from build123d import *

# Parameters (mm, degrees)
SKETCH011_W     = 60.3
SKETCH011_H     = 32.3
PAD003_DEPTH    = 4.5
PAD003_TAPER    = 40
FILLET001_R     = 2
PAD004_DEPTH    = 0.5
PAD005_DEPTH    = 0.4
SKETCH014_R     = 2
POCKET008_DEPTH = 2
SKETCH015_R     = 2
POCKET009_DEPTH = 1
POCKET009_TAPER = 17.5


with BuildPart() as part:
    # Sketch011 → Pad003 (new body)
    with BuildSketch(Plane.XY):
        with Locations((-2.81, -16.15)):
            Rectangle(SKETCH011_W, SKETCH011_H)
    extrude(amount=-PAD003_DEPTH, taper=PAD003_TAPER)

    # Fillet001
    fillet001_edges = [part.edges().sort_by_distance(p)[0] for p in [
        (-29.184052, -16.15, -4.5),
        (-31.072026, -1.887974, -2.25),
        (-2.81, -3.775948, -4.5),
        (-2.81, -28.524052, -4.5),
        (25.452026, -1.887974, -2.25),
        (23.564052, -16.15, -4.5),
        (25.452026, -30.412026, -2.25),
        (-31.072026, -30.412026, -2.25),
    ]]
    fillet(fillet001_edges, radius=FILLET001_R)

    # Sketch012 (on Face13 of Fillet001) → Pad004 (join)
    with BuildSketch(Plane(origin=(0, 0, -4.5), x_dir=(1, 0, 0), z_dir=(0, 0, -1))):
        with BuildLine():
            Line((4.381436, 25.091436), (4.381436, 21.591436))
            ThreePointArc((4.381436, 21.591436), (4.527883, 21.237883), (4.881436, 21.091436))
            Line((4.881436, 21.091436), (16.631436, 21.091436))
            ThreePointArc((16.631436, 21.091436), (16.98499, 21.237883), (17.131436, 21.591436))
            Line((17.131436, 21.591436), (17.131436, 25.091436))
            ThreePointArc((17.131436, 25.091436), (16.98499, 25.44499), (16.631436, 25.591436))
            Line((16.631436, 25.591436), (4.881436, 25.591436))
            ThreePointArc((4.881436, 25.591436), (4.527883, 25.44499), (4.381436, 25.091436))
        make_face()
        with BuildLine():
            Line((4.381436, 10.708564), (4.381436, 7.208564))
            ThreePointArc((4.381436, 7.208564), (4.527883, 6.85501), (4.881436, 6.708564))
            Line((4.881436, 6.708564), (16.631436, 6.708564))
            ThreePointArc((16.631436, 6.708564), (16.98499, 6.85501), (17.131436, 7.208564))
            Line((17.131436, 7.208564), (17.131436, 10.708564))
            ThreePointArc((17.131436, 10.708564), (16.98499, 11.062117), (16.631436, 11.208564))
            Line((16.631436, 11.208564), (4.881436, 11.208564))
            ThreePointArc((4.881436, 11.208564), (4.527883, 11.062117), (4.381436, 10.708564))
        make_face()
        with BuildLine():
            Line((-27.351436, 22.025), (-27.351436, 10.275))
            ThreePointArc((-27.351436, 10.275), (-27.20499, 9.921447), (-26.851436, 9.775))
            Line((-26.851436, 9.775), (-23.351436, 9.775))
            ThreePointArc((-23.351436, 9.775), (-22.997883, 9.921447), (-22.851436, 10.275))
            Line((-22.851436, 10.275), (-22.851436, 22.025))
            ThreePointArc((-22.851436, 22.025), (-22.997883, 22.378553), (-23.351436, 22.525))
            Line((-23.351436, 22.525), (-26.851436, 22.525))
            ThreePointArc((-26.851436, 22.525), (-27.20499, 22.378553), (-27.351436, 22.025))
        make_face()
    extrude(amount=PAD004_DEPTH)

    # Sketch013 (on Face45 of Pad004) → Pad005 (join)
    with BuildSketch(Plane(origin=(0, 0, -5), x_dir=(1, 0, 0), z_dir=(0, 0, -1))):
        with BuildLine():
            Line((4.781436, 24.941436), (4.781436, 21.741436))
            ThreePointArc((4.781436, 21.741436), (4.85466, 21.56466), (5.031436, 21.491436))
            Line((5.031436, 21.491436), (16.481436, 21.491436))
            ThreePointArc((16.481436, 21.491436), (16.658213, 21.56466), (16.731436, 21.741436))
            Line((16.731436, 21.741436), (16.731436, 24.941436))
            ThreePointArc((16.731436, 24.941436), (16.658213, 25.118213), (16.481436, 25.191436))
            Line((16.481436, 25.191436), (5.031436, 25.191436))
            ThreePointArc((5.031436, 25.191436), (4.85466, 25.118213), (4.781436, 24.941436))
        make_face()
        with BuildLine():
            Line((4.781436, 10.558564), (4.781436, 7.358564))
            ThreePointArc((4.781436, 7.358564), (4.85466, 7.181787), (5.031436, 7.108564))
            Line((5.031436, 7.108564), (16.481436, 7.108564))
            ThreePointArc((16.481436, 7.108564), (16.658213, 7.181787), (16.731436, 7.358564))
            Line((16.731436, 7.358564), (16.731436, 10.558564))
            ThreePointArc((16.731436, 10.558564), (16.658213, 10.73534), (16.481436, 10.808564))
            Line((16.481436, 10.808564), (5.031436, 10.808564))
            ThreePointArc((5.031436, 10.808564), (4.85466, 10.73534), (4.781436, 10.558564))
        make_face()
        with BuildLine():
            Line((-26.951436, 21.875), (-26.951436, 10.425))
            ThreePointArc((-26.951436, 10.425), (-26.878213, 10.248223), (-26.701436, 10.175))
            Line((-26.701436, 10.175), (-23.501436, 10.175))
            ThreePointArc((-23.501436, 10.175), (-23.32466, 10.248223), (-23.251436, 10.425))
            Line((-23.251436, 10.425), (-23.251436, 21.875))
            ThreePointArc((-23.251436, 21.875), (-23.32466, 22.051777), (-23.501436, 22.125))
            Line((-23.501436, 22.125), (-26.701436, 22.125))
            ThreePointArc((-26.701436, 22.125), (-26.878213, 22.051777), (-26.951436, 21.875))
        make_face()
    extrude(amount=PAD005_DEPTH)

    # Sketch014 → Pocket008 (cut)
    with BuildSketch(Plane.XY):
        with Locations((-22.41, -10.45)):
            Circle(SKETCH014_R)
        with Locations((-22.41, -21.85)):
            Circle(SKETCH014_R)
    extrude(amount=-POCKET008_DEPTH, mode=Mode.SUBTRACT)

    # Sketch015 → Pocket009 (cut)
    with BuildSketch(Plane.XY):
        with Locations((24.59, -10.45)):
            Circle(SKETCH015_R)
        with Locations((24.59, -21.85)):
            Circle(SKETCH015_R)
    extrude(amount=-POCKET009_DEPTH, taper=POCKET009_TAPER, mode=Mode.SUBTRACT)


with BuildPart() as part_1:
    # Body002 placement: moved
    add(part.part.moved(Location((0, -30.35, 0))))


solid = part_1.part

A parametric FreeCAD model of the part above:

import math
import FreeCAD as App
import Part
import Sketcher


def edges_at(feature, points):
    """Names of the edges that pass closest to the given points."""
    edges = feature.Shape.Edges
    near = lambda p: min(range(len(edges)), key=lambda i: edges[i].distToShape(Part.Vertex(*p))[0])
    return sorted({f"Edge{near(p) + 1}" for p in points})


def add_polygon(sketch, points):
    """Adds a closed chain of lines whose ends are joined by coincident constraints."""
    first, n = sketch.GeometryCount, len(points)
    for a, b in zip(points, points[1:] + points[:1]):
        sketch.addGeometry(Part.LineSegment(App.Vector(*a, 0), App.Vector(*b, 0)), False)
    for i in range(n):
        sketch.addConstraint(Sketcher.Constraint("Coincident", first + i, 2, first + (i + 1) % n, 1))

doc = App.newDocument("Part")
params = doc.addObject("Spreadsheet::Sheet", "Params")
for row, (alias, value) in enumerate([
    ("sketch1_width", "60.3 mm"),
    ("sketch1_height", "32.3 mm"),
    ("pad1_length", "4.5 mm"),
    ("pad1_taper", "-40 deg"),
    ("fillet_radius", "2 mm"),
    ("sketch2_radius", "0.500001 mm"),
    ("sketch2_width", "3.5 mm"),
    ("sketch2_width2", "11.75 mm"),
    ("pad2_length", "0.5 mm"),
    ("sketch3_radius", "0.250001 mm"),
    ("sketch3_width", "3.2 mm"),
    ("sketch3_width2", "11.45 mm"),
    ("pad3_length", "0.4 mm"),
    ("sketch4_diameter", "4 mm"),
    ("pocket1_length", "2 mm"),
    ("sketch5_diameter", "4 mm"),
    ("pocket2_length", "1 mm"),
    ("pocket2_taper", "-17.5 deg"),
], start=1):
    params.set(f"A{row}", alias)
    params.set(f"B{row}", "=" + value)
    params.setAlias(f"B{row}", alias)

body = doc.addObject("PartDesign::Body", "Body")

# Sketch on XY plane
sketch1 = doc.addObject("Sketcher::SketchObject", "Sketch")
body.addObject(sketch1)
sketch1.AttachmentSupport = (doc.XY_Plane, [""])
sketch1.MapMode = "FlatFace"
add_polygon(sketch1, [(-33, 0), (-33, -32), (27, -32), (27, 0)])  # lines 0-3
sketch1.addConstraint(Sketcher.Constraint("Vertical", 0))
sketch1.addConstraint(Sketcher.Constraint("Horizontal", 1))
sketch1.addConstraint(Sketcher.Constraint("Vertical", 2))
sketch1.addConstraint(Sketcher.Constraint("Horizontal", 3))
sketch1.addConstraint(Sketcher.Constraint("PointOnObject", 2, 2, -1))
sketch1.addConstraint(Sketcher.Constraint("DistanceX", 1, 1, 1, 2, 60.3))
sketch1.addConstraint(Sketcher.Constraint("DistanceY", 0, 2, 0, 1, 32.3))
sketch1.addConstraint(Sketcher.Constraint("DistanceX", 0, 2, -1, 1, 32.96))
sketch1.setExpression("Constraints[9]", "Params.sketch1_width")
sketch1.setExpression("Constraints[10]", "Params.sketch1_height")
pad1 = doc.addObject("PartDesign::Pad", "Pad")
body.addObject(pad1)
pad1.Profile = sketch1
pad1.setExpression("Length", "Params.pad1_length")
pad1.Reversed = True
pad1.setExpression("TaperAngle", "Params.pad1_taper")
doc.recompute()

fillet = doc.addObject("PartDesign::Fillet", "Fillet")
body.addObject(fillet)
fillet.Base = (pad1, edges_at(pad1, [
    (-29.184, -16.15, -4.5),
    (-31.072, -1.888, -2.25),
    (-2.81, -3.776, -4.5),
    (-2.81, -28.524, -4.5),
    (25.452, -1.888, -2.25),
    (23.564, -16.15, -4.5),
    (25.452, -30.412, -2.25),
    (-31.072, -30.412, -2.25),
]))
fillet.setExpression("Radius", "Params.fillet_radius")

# Sketch on XY plane
sketch2 = doc.addObject("Sketcher::SketchObject", "Sketch001")
body.addObject(sketch2)
sketch2.AttachmentSupport = (doc.XY_Plane, [""])
sketch2.MapMode = "FlatFace"
sketch2.AttachmentOffset = App.Placement(App.Vector(0, 0, -4.5), App.Rotation())
sketch2.addGeometry(Part.LineSegment(App.Vector(4.38, -25.09, 0), App.Vector(4.38, -21.59, 0)), False)
sketch2.addGeometry(Part.ArcOfCircle(Part.Circle(App.Vector(4.88, -21.59, 0), App.Vector(0, 0, 1), 0.5), math.radians(90), math.radians(180)), False)
sketch2.addGeometry(Part.LineSegment(App.Vector(4.88, -21.09, 0), App.Vector(16.63, -21.09, 0)), False)
sketch2.addGeometry(Part.ArcOfCircle(Part.Circle(App.Vector(16.63, -21.59, 0), App.Vector(0, 0, 1), 0.5), math.radians(0), math.radians(90)), False)
sketch2.addGeometry(Part.LineSegment(App.Vector(17.13, -21.59, 0), App.Vector(17.13, -25.09, 0)), False)
sketch2.addGeometry(Part.ArcOfCircle(Part.Circle(App.Vector(16.63, -25.09, 0), App.Vector(0, 0, 1), 0.5), math.radians(-90), math.radians(0)), False)
sketch2.addGeometry(Part.LineSegment(App.Vector(16.63, -25.59, 0), App.Vector(4.88, -25.59, 0)), False)
sketch2.addGeometry(Part.ArcOfCircle(Part.Circle(App.Vector(4.88, -25.09, 0), App.Vector(0, 0, 1), 0.5), math.radians(180), math.radians(270)), False)
sketch2.addGeometry(Part.LineSegment(App.Vector(4.38, -10.71, 0), App.Vector(4.38, -7.21, 0)), False)
sketch2.addGeometry(Part.ArcOfCircle(Part.Circle(App.Vector(4.88, -7.21, 0), App.Vector(0, 0, 1), 0.5), math.radians(90), math.radians(180)), False)
sketch2.addGeometry(Part.LineSegment(App.Vector(4.88, -6.71, 0), App.Vector(16.63, -6.71, 0)), False)
sketch2.addGeometry(Part.ArcOfCircle(Part.Circle(App.Vector(16.63, -7.21, 0), App.Vector(0, 0, 1), 0.5), math.radians(0), math.radians(90)), False)
sketch2.addGeometry(Part.LineSegment(App.Vector(17.13, -7.21, 0), App.Vector(17.13, -10.71, 0)), False)
sketch2.addGeometry(Part.ArcOfCircle(Part.Circle(App.Vector(16.63, -10.71, 0), App.Vector(0, 0, 1), 0.5), math.radians(-90), math.radians(0)), False)
sketch2.addGeometry(Part.LineSegment(App.Vector(16.63, -11.21, 0), App.Vector(4.88, -11.21, 0)), False)
sketch2.addGeometry(Part.ArcOfCircle(Part.Circle(App.Vector(4.88, -10.71, 0), App.Vector(0, 0, 1), 0.5), math.radians(-180), math.radians(-90)), False)
sketch2.addGeometry(Part.LineSegment(App.Vector(-27.35, -22.02, 0), App.Vector(-27.35, -10.28, 0)), False)
sketch2.addGeometry(Part.ArcOfCircle(Part.Circle(App.Vector(-26.85, -10.27, 0), App.Vector(0, 0, 1), 0.5), math.radians(90), math.radians(180)), False)
sketch2.addGeometry(Part.LineSegment(App.Vector(-26.85, -9.78, 0), App.Vector(-23.35, -9.78, 0)), False)
sketch2.addGeometry(Part.ArcOfCircle(Part.Circle(App.Vector(-23.35, -10.28, 0), App.Vector(0, 0, 1), 0.5), math.radians(0), math.radians(90)), False)
sketch2.addGeometry(Part.LineSegment(App.Vector(-22.85, -10.28, 0), App.Vector(-22.85, -22.02, 0)), False)
sketch2.addGeometry(Part.ArcOfCircle(Part.Circle(App.Vector(-23.35, -22.02, 0), App.Vector(0, 0, 1), 0.5), math.radians(-90), math.radians(0)), False)
sketch2.addGeometry(Part.LineSegment(App.Vector(-23.35, -22.52, 0), App.Vector(-26.85, -22.52, 0)), False)
sketch2.addGeometry(Part.ArcOfCircle(Part.Circle(App.Vector(-26.85, -22.03, 0), App.Vector(0, 0, 1), 0.5), math.radians(180), math.radians(270)), False)
sketch2.addConstraint(Sketcher.Constraint("Coincident", 0, 2, 1, 2))
sketch2.addConstraint(Sketcher.Constraint("Coincident", 1, 1, 2, 1))
sketch2.addConstraint(Sketcher.Constraint("Tangent", 2, 2, 3, 2))
sketch2.addConstraint(Sketcher.Constraint("Tangent", 3, 1, 4, 1))
sketch2.addConstraint(Sketcher.Constraint("Coincident", 4, 2, 5, 2))
sketch2.addConstraint(Sketcher.Constraint("Coincident", 5, 1, 6, 1))
sketch2.addConstraint(Sketcher.Constraint("Tangent", 6, 2, 7, 2))
sketch2.addConstraint(Sketcher.Constraint("Tangent", 7, 1, 0, 1))
sketch2.addConstraint(Sketcher.Constraint("Tangent", 8, 2, 9, 2))
sketch2.addConstraint(Sketcher.Constraint("Tangent", 9, 1, 10, 1))
sketch2.addConstraint(Sketcher.Constraint("Coincident", 10, 2, 11, 2))
sketch2.addConstraint(Sketcher.Constraint("Coincident", 11, 1, 12, 1))
sketch2.addConstraint(Sketcher.Constraint("Tangent", 12, 2, 13, 2))
sketch2.addConstraint(Sketcher.Constraint("Tangent", 13, 1, 14, 1))
sketch2.addConstraint(Sketcher.Constraint("Coincident", 14, 2, 15, 2))
sketch2.addConstraint(Sketcher.Constraint("Coincident", 15, 1, 8, 1))
sketch2.addConstraint(Sketcher.Constraint("Tangent", 16, 2, 17, 2))
sketch2.addConstraint(Sketcher.Constraint("Tangent", 17, 1, 18, 1))
sketch2.addConstraint(Sketcher.Constraint("Coincident", 18, 2, 19, 2))
sketch2.addConstraint(Sketcher.Constraint("Coincident", 19, 1, 20, 1))
sketch2.addConstraint(Sketcher.Constraint("Coincident", 20, 2, 21, 2))
sketch2.addConstraint(Sketcher.Constraint("Coincident", 21, 1, 22, 1))
sketch2.addConstraint(Sketcher.Constraint("Tangent", 22, 2, 23, 2))
sketch2.addConstraint(Sketcher.Constraint("Tangent", 23, 1, 16, 1))
sketch2.addConstraint(Sketcher.Constraint("Vertical", 0))
sketch2.addConstraint(Sketcher.Constraint("Horizontal", 2))
sketch2.addConstraint(Sketcher.Constraint("Vertical", 4))
sketch2.addConstraint(Sketcher.Constraint("Horizontal", 6))
sketch2.addConstraint(Sketcher.Constraint("Vertical", 8))
sketch2.addConstraint(Sketcher.Constraint("Horizontal", 10))
sketch2.addConstraint(Sketcher.Constraint("Vertical", 12))
sketch2.addConstraint(Sketcher.Constraint("Horizontal", 14))
sketch2.addConstraint(Sketcher.Constraint("Vertical", 16))
sketch2.addConstraint(Sketcher.Constraint("Horizontal", 18))
sketch2.addConstraint(Sketcher.Constraint("Vertical", 20))
sketch2.addConstraint(Sketcher.Constraint("Horizontal", 22))
sketch2.addConstraint(Sketcher.Constraint("Equal", 1, 3))
sketch2.addConstraint(Sketcher.Constraint("Equal", 3, 5))
sketch2.addConstraint(Sketcher.Constraint("Equal", 5, 7))
sketch2.addConstraint(Sketcher.Constraint("Equal", 7, 9))
sketch2.addConstraint(Sketcher.Constraint("Equal", 9, 11))
sketch2.addConstraint(Sketcher.Constraint("Equal", 11, 13))
sketch2.addConstraint(Sketcher.Constraint("Equal", 13, 15))
sketch2.addConstraint(Sketcher.Constraint("Equal", 15, 17))
sketch2.addConstraint(Sketcher.Constraint("Equal", 17, 19))
sketch2.addConstraint(Sketcher.Constraint("Equal", 19, 21))
sketch2.addConstraint(Sketcher.Constraint("Equal", 21, 23))
sketch2.addConstraint(Sketcher.Constraint("Horizontal", 3, 3, 0, 2))
sketch2.addConstraint(Sketcher.Constraint("Horizontal", 7, 3, 4, 2))
sketch2.addConstraint(Sketcher.Constraint("Horizontal", 8, 2, 11, 1))
sketch2.addConstraint(Sketcher.Constraint("Horizontal", 12, 2, 15, 1))
sketch2.addConstraint(Sketcher.Constraint("Horizontal", 16, 2, 19, 1))
sketch2.addConstraint(Sketcher.Constraint("Horizontal", 23, 3, 20, 2))
sketch2.addConstraint(Sketcher.Constraint("Vertical", 7, 3, 9, 3))
sketch2.addConstraint(Sketcher.Constraint("Vertical", 5, 3, 11, 3))
sketch2.addConstraint(Sketcher.Constraint("Vertical", 15, 3, 1, 1))
sketch2.addConstraint(Sketcher.Constraint("Vertical", 2, 2, 5, 1))
sketch2.addConstraint(Sketcher.Constraint("Vertical", 5, 1, 10, 2))
sketch2.addConstraint(Sketcher.Constraint("Vertical", 9, 1, 14, 2))
sketch2.addConstraint(Sketcher.Constraint("Vertical", 21, 3, 18, 2))
sketch2.addConstraint(Sketcher.Constraint("Vertical", 18, 2, 21, 1))
sketch2.addConstraint(Sketcher.Constraint("Equal", 22, 0))
sketch2.addConstraint(Sketcher.Constraint("Equal", 4, 8))
sketch2.addConstraint(Sketcher.Constraint("Equal", 14, 16))
sketch2.addConstraint(Sketcher.Constraint("Radius", 1, 0.500001))
sketch2.addConstraint(Sketcher.Constraint("DistanceX", 18, 1, 18, 2, 3.5))
sketch2.addConstraint(Sketcher.Constraint("DistanceX", 2, 1, 2, 2, 11.75))
sketch2.addConstraint(Sketcher.Constraint("DistanceY", 17, 3, -1, 1, 10.275))
sketch2.addConstraint(Sketcher.Constraint("DistanceX", -1, 1, 5, 3, 16.631438))
sketch2.addConstraint(Sketcher.Constraint("DistanceY", 5, 3, -1, 1, 25.091438))
sketch2.addConstraint(Sketcher.Constraint("DistanceY", 11, 3, -1, 1, 7.208562))
sketch2.addConstraint(Sketcher.Constraint("DistanceX", 17, 3, -1, 1, 26.851436))
sketch2.setExpression("Constraints[64]", "Params.sketch2_radius")
sketch2.setExpression("Constraints[65]", "Params.sketch2_width")
sketch2.setExpression("Constraints[66]", "Params.sketch2_width2")
pad2 = doc.addObject("PartDesign::Pad", "Pad001")
body.addObject(pad2)
pad2.Profile = sketch2
pad2.setExpression("Length", "Params.pad2_length")
pad2.Reversed = True

# Sketch on XY plane
sketch3 = doc.addObject("Sketcher::SketchObject", "Sketch002")
body.addObject(sketch3)
sketch3.AttachmentSupport = (doc.XY_Plane, [""])
sketch3.MapMode = "FlatFace"
sketch3.AttachmentOffset = App.Placement(App.Vector(0, 0, -5), App.Rotation())
sketch3.addGeometry(Part.LineSegment(App.Vector(4.78, -24.94, 0), App.Vector(4.78, -21.74, 0)), False)
sketch3.addGeometry(Part.ArcOfCircle(Part.Circle(App.Vector(5.03, -21.74, 0), App.Vector(0, 0, 1), 0.25), math.radians(90), math.radians(180)), False)
sketch3.addGeometry(Part.LineSegment(App.Vector(5.03, -21.49, 0), App.Vector(16.48, -21.49, 0)), False)
sketch3.addGeometry(Part.ArcOfCircle(Part.Circle(App.Vector(16.48, -21.74, 0), App.Vector(0, 0, 1), 0.25), math.radians(0), math.radians(90)), False)
sketch3.addGeometry(Part.LineSegment(App.Vector(16.73, -21.74, 0), App.Vector(16.73, -24.94, 0)), False)
sketch3.addGeometry(Part.ArcOfCircle(Part.Circle(App.Vector(16.48, -24.94, 0), App.Vector(0, 0, 1), 0.25), math.radians(-90), math.radians(0)), False)
sketch3.addGeometry(Part.LineSegment(App.Vector(16.48, -25.19, 0), App.Vector(5.03, -25.19, 0)), False)
sketch3.addGeometry(Part.ArcOfCircle(Part.Circle(App.Vector(5.03, -24.94, 0), App.Vector(0, 0, 1), 0.25), math.radians(-180), math.radians(-90)), False)
sketch3.addGeometry(Part.LineSegment(App.Vector(4.78, -10.56, 0), App.Vector(4.78, -7.36, 0)), False)
sketch3.addGeometry(Part.ArcOfCircle(Part.Circle(App.Vector(5.03, -7.36, 0), App.Vector(0, 0, 1), 0.25), math.radians(90), math.radians(180)), False)
sketch3.addGeometry(Part.LineSegment(App.Vector(5.03, -7.11, 0), App.Vector(16.48, -7.11, 0)), False)
sketch3.addGeometry(Part.ArcOfCircle(Part.Circle(App.Vector(16.48, -7.36, 0), App.Vector(0, 0, 1), 0.25), math.radians(0), math.radians(90)), False)
sketch3.addGeometry(Part.LineSegment(App.Vector(16.73, -7.36, 0), App.Vector(16.73, -10.56, 0)), False)
sketch3.addGeometry(Part.ArcOfCircle(Part.Circle(App.Vector(16.48, -10.56, 0), App.Vector(0, 0, 1), 0.25), math.radians(-90), math.radians(0)), False)
sketch3.addGeometry(Part.LineSegment(App.Vector(16.48, -10.81, 0), App.Vector(5.03, -10.81, 0)), False)
sketch3.addGeometry(Part.ArcOfCircle(Part.Circle(App.Vector(5.03, -10.56, 0), App.Vector(0, 0, 1), 0.25), math.radians(-180), math.radians(-90)), False)
sketch3.addGeometry(Part.LineSegment(App.Vector(-26.95, -21.88, 0), App.Vector(-26.95, -10.43, 0)), False)
sketch3.addGeometry(Part.ArcOfCircle(Part.Circle(App.Vector(-26.7, -10.42, 0), App.Vector(0, 0, 1), 0.25), math.radians(90), math.radians(180)), False)
sketch3.addGeometry(Part.LineSegment(App.Vector(-26.7, -10.18, 0), App.Vector(-23.5, -10.18, 0)), False)
sketch3.addGeometry(Part.ArcOfCircle(Part.Circle(App.Vector(-23.5, -10.43, 0), App.Vector(0, 0, 1), 0.25), math.radians(0), math.radians(90)), False)
sketch3.addGeometry(Part.LineSegment(App.Vector(-23.25, -10.43, 0), App.Vector(-23.25, -21.88, 0)), False)
sketch3.addGeometry(Part.ArcOfCircle(Part.Circle(App.Vector(-23.5, -21.87, 0), App.Vector(0, 0, 1), 0.25), math.radians(-90), math.radians(0)), False)
sketch3.addGeometry(Part.LineSegment(App.Vector(-23.5, -22.12, 0), App.Vector(-26.7, -22.12, 0)), False)
sketch3.addGeometry(Part.ArcOfCircle(Part.Circle(App.Vector(-26.7, -21.88, 0), App.Vector(0, 0, 1), 0.25), math.radians(180), math.radians(270)), False)
sketch3.addConstraint(Sketcher.Constraint("Coincident", 0, 2, 1, 2))
sketch3.addConstraint(Sketcher.Constraint("Coincident", 1, 1, 2, 1))
sketch3.addConstraint(Sketcher.Constraint("Coincident", 2, 2, 3, 2))
sketch3.addConstraint(Sketcher.Constraint("Coincident", 3, 1, 4, 1))
sketch3.addConstraint(Sketcher.Constraint("Coincident", 4, 2, 5, 2))
sketch3.addConstraint(Sketcher.Constraint("Coincident", 5, 1, 6, 1))
sketch3.addConstraint(Sketcher.Constraint("Coincident", 6, 2, 7, 2))
sketch3.addConstraint(Sketcher.Constraint("Coincident", 7, 1, 0, 1))
sketch3.addConstraint(Sketcher.Constraint("Coincident", 8, 2, 9, 2))
sketch3.addConstraint(Sketcher.Constraint("Coincident", 9, 1, 10, 1))
sketch3.addConstraint(Sketcher.Constraint("Coincident", 10, 2, 11, 2))
sketch3.addConstraint(Sketcher.Constraint("Coincident", 11, 1, 12, 1))
sketch3.addConstraint(Sketcher.Constraint("Coincident", 12, 2, 13, 2))
sketch3.addConstraint(Sketcher.Constraint("Coincident", 13, 1, 14, 1))
sketch3.addConstraint(Sketcher.Constraint("Coincident", 14, 2, 15, 2))
sketch3.addConstraint(Sketcher.Constraint("Coincident", 15, 1, 8, 1))
sketch3.addConstraint(Sketcher.Constraint("Coincident", 16, 2, 17, 2))
sketch3.addConstraint(Sketcher.Constraint("Coincident", 17, 1, 18, 1))
sketch3.addConstraint(Sketcher.Constraint("Coincident", 18, 2, 19, 2))
sketch3.addConstraint(Sketcher.Constraint("Coincident", 19, 1, 20, 1))
sketch3.addConstraint(Sketcher.Constraint("Coincident", 20, 2, 21, 2))
sketch3.addConstraint(Sketcher.Constraint("Coincident", 21, 1, 22, 1))
sketch3.addConstraint(Sketcher.Constraint("Coincident", 22, 2, 23, 2))
sketch3.addConstraint(Sketcher.Constraint("Coincident", 23, 1, 16, 1))
sketch3.addConstraint(Sketcher.Constraint("Vertical", 0))
sketch3.addConstraint(Sketcher.Constraint("Horizontal", 2))
sketch3.addConstraint(Sketcher.Constraint("Vertical", 4))
sketch3.addConstraint(Sketcher.Constraint("Horizontal", 6))
sketch3.addConstraint(Sketcher.Constraint("Vertical", 8))
sketch3.addConstraint(Sketcher.Constraint("Horizontal", 10))
sketch3.addConstraint(Sketcher.Constraint("Vertical", 12))
sketch3.addConstraint(Sketcher.Constraint("Horizontal", 14))
sketch3.addConstraint(Sketcher.Constraint("Vertical", 16))
sketch3.addConstraint(Sketcher.Constraint("Horizontal", 18))
sketch3.addConstraint(Sketcher.Constraint("Vertical", 20))
sketch3.addConstraint(Sketcher.Constraint("Horizontal", 22))
sketch3.addConstraint(Sketcher.Constraint("Equal", 1, 3))
sketch3.addConstraint(Sketcher.Constraint("Equal", 3, 5))
sketch3.addConstraint(Sketcher.Constraint("Equal", 5, 7))
sketch3.addConstraint(Sketcher.Constraint("Equal", 7, 9))
sketch3.addConstraint(Sketcher.Constraint("Equal", 9, 11))
sketch3.addConstraint(Sketcher.Constraint("Equal", 11, 13))
sketch3.addConstraint(Sketcher.Constraint("Equal", 13, 15))
sketch3.addConstraint(Sketcher.Constraint("Equal", 13, 17))
sketch3.addConstraint(Sketcher.Constraint("Equal", 17, 19))
sketch3.addConstraint(Sketcher.Constraint("Equal", 19, 21))
sketch3.addConstraint(Sketcher.Constraint("Equal", 21, 23))
sketch3.addConstraint(Sketcher.Constraint("Horizontal", 3, 3, 0, 2))
sketch3.addConstraint(Sketcher.Constraint("Horizontal", 0, 2, 3, 1))
sketch3.addConstraint(Sketcher.Constraint("Horizontal", 7, 3, 4, 2))
sketch3.addConstraint(Sketcher.Constraint("Horizontal", 4, 2, 7, 1))
sketch3.addConstraint(Sketcher.Constraint("Horizontal", 11, 3, 8, 2))
sketch3.addConstraint(Sketcher.Constraint("Horizontal", 8, 2, 11, 1))
sketch3.addConstraint(Sketcher.Constraint("Horizontal", 13, 3, 12, 2))
sketch3.addConstraint(Sketcher.Constraint("Horizontal", 12, 2, 15, 1))
sketch3.addConstraint(Sketcher.Constraint("Horizontal", 19, 3, 16, 2))
sketch3.addConstraint(Sketcher.Constraint("Horizontal", 16, 2, 19, 1))
sketch3.addConstraint(Sketcher.Constraint("Horizontal", 23, 3, 20, 2))
sketch3.addConstraint(Sketcher.Constraint("Horizontal", 20, 2, 23, 1))
sketch3.addConstraint(Sketcher.Constraint("Vertical", 7, 3, 9, 3))
sketch3.addConstraint(Sketcher.Constraint("Vertical", 5, 3, 11, 3))
sketch3.addConstraint(Sketcher.Constraint("Vertical", 9, 3, 1, 1))
sketch3.addConstraint(Sketcher.Constraint("Vertical", 13, 3, 2, 2))
sketch3.addConstraint(Sketcher.Constraint("Vertical", 2, 2, 5, 1))
sketch3.addConstraint(Sketcher.Constraint("Vertical", 1, 1, 6, 2))
sketch3.addConstraint(Sketcher.Constraint("Vertical", 6, 2, 9, 1))
sketch3.addConstraint(Sketcher.Constraint("Vertical", 5, 1, 10, 2))
sketch3.addConstraint(Sketcher.Constraint("Vertical", 10, 2, 13, 1))
sketch3.addConstraint(Sketcher.Constraint("Vertical", 9, 1, 14, 2))
sketch3.addConstraint(Sketcher.Constraint("Vertical", 23, 3, 17, 1))
sketch3.addConstraint(Sketcher.Constraint("Vertical", 21, 3, 18, 2))
sketch3.addConstraint(Sketcher.Constraint("Vertical", 18, 2, 21, 1))
sketch3.addConstraint(Sketcher.Constraint("Vertical", 17, 1, 22, 2))
sketch3.addConstraint(Sketcher.Constraint("Equal", 22, 0))
sketch3.addConstraint(Sketcher.Constraint("Equal", 4, 8))
sketch3.addConstraint(Sketcher.Constraint("Equal", 14, 16))
sketch3.addConstraint(Sketcher.Constraint("Radius", 3, 0.250001))
sketch3.addConstraint(Sketcher.Constraint("DistanceX", 18, 1, 18, 2, 3.2))
sketch3.addConstraint(Sketcher.Constraint("DistanceX", 2, 1, 2, 2, 11.45))
sketch3.addConstraint(Sketcher.Constraint("DistanceY", 17, 3, -1, 1, 10.424999))
sketch3.addConstraint(Sketcher.Constraint("DistanceX", -1, 1, 1, 3, 5.031438))
sketch3.addConstraint(Sketcher.Constraint("DistanceY", 1, 3, -1, 1, 21.741438))
sketch3.addConstraint(Sketcher.Constraint("DistanceY", 15, 3, -1, 1, 10.558562))
sketch3.addConstraint(Sketcher.Constraint("DistanceX", 17, 3, -1, 1, 26.701437))
sketch3.setExpression("Constraints[76]", "Params.sketch3_radius")
sketch3.setExpression("Constraints[77]", "Params.sketch3_width")
sketch3.setExpression("Constraints[78]", "Params.sketch3_width2")
pad3 = doc.addObject("PartDesign::Pad", "Pad002")
body.addObject(pad3)
pad3.Profile = sketch3
pad3.setExpression("Length", "Params.pad3_length")
pad3.Reversed = True

# Sketch on XY plane
sketch4 = doc.addObject("Sketcher::SketchObject", "Sketch003")
body.addObject(sketch4)
sketch4.AttachmentSupport = (doc.XY_Plane, [""])
sketch4.MapMode = "FlatFace"
sketch4.addGeometry(Part.Circle(App.Vector(-22.4, -10.4, 0), App.Vector(0, 0, 1), 2), False)
sketch4.addGeometry(Part.Circle(App.Vector(-22.4, -21.9, 0), App.Vector(0, 0, 1), 2), False)
sketch4.addConstraint(Sketcher.Constraint("Equal", 0, 1))
sketch4.addConstraint(Sketcher.Constraint("Vertical", 0, 3, 1, 3))
sketch4.addConstraint(Sketcher.Constraint("Diameter", 0, 4.0))
sketch4.addConstraint(Sketcher.Constraint("DistanceY", 1, 3, 0, 3, 11.4))
sketch4.addConstraint(Sketcher.Constraint("DistanceX", 0, 3, -1, 1, 22.41))
sketch4.addConstraint(Sketcher.Constraint("DistanceY", 0, 3, -1, 1, 10.45))
sketch4.setExpression("Constraints[2]", "Params.sketch4_diameter")
pocket1 = doc.addObject("PartDesign::Pocket", "Pocket")
body.addObject(pocket1)
pocket1.Profile = sketch4
pocket1.setExpression("Length", "Params.pocket1_length")

# Sketch on XY plane
sketch5 = doc.addObject("Sketcher::SketchObject", "Sketch004")
body.addObject(sketch5)
sketch5.AttachmentSupport = (doc.XY_Plane, [""])
sketch5.MapMode = "FlatFace"
sketch5.addGeometry(Part.Circle(App.Vector(24.6, -10.4, 0), App.Vector(0, 0, 1), 2), False)
sketch5.addGeometry(Part.Circle(App.Vector(24.6, -21.9, 0), App.Vector(0, 0, 1), 2), False)
sketch5.addConstraint(Sketcher.Constraint("Equal", 0, 1))
sketch5.addConstraint(Sketcher.Constraint("Vertical", 0, 3, 1, 3))
sketch5.addConstraint(Sketcher.Constraint("Diameter", 0, 4.0))
sketch5.addConstraint(Sketcher.Constraint("DistanceY", 1, 3, 0, 3, 11.4))
sketch5.addConstraint(Sketcher.Constraint("DistanceX", -1, 1, 0, 3, 24.59))
sketch5.addConstraint(Sketcher.Constraint("DistanceY", 0, 3, -1, 1, 10.45))
sketch5.setExpression("Constraints[2]", "Params.sketch5_diameter")
pocket2 = doc.addObject("PartDesign::Pocket", "Pocket001")
body.addObject(pocket2)
pocket2.Profile = sketch5
pocket2.setExpression("Length", "Params.pocket2_length")
pocket2.setExpression("TaperAngle", "Params.pocket2_taper")
body2 = doc.addObject("PartDesign::Body", "Body001")
doc.recompute()

body.Placement = App.Placement(App.Vector(0, -30.35, 0), App.Rotation(App.Vector(0, 0, 1), 0))
boolean = doc.addObject("PartDesign::Boolean", "Boolean")
body2.addObject(boolean)
boolean.Type = "Fuse"
boolean.addObjects([body])

doc.recompute()
